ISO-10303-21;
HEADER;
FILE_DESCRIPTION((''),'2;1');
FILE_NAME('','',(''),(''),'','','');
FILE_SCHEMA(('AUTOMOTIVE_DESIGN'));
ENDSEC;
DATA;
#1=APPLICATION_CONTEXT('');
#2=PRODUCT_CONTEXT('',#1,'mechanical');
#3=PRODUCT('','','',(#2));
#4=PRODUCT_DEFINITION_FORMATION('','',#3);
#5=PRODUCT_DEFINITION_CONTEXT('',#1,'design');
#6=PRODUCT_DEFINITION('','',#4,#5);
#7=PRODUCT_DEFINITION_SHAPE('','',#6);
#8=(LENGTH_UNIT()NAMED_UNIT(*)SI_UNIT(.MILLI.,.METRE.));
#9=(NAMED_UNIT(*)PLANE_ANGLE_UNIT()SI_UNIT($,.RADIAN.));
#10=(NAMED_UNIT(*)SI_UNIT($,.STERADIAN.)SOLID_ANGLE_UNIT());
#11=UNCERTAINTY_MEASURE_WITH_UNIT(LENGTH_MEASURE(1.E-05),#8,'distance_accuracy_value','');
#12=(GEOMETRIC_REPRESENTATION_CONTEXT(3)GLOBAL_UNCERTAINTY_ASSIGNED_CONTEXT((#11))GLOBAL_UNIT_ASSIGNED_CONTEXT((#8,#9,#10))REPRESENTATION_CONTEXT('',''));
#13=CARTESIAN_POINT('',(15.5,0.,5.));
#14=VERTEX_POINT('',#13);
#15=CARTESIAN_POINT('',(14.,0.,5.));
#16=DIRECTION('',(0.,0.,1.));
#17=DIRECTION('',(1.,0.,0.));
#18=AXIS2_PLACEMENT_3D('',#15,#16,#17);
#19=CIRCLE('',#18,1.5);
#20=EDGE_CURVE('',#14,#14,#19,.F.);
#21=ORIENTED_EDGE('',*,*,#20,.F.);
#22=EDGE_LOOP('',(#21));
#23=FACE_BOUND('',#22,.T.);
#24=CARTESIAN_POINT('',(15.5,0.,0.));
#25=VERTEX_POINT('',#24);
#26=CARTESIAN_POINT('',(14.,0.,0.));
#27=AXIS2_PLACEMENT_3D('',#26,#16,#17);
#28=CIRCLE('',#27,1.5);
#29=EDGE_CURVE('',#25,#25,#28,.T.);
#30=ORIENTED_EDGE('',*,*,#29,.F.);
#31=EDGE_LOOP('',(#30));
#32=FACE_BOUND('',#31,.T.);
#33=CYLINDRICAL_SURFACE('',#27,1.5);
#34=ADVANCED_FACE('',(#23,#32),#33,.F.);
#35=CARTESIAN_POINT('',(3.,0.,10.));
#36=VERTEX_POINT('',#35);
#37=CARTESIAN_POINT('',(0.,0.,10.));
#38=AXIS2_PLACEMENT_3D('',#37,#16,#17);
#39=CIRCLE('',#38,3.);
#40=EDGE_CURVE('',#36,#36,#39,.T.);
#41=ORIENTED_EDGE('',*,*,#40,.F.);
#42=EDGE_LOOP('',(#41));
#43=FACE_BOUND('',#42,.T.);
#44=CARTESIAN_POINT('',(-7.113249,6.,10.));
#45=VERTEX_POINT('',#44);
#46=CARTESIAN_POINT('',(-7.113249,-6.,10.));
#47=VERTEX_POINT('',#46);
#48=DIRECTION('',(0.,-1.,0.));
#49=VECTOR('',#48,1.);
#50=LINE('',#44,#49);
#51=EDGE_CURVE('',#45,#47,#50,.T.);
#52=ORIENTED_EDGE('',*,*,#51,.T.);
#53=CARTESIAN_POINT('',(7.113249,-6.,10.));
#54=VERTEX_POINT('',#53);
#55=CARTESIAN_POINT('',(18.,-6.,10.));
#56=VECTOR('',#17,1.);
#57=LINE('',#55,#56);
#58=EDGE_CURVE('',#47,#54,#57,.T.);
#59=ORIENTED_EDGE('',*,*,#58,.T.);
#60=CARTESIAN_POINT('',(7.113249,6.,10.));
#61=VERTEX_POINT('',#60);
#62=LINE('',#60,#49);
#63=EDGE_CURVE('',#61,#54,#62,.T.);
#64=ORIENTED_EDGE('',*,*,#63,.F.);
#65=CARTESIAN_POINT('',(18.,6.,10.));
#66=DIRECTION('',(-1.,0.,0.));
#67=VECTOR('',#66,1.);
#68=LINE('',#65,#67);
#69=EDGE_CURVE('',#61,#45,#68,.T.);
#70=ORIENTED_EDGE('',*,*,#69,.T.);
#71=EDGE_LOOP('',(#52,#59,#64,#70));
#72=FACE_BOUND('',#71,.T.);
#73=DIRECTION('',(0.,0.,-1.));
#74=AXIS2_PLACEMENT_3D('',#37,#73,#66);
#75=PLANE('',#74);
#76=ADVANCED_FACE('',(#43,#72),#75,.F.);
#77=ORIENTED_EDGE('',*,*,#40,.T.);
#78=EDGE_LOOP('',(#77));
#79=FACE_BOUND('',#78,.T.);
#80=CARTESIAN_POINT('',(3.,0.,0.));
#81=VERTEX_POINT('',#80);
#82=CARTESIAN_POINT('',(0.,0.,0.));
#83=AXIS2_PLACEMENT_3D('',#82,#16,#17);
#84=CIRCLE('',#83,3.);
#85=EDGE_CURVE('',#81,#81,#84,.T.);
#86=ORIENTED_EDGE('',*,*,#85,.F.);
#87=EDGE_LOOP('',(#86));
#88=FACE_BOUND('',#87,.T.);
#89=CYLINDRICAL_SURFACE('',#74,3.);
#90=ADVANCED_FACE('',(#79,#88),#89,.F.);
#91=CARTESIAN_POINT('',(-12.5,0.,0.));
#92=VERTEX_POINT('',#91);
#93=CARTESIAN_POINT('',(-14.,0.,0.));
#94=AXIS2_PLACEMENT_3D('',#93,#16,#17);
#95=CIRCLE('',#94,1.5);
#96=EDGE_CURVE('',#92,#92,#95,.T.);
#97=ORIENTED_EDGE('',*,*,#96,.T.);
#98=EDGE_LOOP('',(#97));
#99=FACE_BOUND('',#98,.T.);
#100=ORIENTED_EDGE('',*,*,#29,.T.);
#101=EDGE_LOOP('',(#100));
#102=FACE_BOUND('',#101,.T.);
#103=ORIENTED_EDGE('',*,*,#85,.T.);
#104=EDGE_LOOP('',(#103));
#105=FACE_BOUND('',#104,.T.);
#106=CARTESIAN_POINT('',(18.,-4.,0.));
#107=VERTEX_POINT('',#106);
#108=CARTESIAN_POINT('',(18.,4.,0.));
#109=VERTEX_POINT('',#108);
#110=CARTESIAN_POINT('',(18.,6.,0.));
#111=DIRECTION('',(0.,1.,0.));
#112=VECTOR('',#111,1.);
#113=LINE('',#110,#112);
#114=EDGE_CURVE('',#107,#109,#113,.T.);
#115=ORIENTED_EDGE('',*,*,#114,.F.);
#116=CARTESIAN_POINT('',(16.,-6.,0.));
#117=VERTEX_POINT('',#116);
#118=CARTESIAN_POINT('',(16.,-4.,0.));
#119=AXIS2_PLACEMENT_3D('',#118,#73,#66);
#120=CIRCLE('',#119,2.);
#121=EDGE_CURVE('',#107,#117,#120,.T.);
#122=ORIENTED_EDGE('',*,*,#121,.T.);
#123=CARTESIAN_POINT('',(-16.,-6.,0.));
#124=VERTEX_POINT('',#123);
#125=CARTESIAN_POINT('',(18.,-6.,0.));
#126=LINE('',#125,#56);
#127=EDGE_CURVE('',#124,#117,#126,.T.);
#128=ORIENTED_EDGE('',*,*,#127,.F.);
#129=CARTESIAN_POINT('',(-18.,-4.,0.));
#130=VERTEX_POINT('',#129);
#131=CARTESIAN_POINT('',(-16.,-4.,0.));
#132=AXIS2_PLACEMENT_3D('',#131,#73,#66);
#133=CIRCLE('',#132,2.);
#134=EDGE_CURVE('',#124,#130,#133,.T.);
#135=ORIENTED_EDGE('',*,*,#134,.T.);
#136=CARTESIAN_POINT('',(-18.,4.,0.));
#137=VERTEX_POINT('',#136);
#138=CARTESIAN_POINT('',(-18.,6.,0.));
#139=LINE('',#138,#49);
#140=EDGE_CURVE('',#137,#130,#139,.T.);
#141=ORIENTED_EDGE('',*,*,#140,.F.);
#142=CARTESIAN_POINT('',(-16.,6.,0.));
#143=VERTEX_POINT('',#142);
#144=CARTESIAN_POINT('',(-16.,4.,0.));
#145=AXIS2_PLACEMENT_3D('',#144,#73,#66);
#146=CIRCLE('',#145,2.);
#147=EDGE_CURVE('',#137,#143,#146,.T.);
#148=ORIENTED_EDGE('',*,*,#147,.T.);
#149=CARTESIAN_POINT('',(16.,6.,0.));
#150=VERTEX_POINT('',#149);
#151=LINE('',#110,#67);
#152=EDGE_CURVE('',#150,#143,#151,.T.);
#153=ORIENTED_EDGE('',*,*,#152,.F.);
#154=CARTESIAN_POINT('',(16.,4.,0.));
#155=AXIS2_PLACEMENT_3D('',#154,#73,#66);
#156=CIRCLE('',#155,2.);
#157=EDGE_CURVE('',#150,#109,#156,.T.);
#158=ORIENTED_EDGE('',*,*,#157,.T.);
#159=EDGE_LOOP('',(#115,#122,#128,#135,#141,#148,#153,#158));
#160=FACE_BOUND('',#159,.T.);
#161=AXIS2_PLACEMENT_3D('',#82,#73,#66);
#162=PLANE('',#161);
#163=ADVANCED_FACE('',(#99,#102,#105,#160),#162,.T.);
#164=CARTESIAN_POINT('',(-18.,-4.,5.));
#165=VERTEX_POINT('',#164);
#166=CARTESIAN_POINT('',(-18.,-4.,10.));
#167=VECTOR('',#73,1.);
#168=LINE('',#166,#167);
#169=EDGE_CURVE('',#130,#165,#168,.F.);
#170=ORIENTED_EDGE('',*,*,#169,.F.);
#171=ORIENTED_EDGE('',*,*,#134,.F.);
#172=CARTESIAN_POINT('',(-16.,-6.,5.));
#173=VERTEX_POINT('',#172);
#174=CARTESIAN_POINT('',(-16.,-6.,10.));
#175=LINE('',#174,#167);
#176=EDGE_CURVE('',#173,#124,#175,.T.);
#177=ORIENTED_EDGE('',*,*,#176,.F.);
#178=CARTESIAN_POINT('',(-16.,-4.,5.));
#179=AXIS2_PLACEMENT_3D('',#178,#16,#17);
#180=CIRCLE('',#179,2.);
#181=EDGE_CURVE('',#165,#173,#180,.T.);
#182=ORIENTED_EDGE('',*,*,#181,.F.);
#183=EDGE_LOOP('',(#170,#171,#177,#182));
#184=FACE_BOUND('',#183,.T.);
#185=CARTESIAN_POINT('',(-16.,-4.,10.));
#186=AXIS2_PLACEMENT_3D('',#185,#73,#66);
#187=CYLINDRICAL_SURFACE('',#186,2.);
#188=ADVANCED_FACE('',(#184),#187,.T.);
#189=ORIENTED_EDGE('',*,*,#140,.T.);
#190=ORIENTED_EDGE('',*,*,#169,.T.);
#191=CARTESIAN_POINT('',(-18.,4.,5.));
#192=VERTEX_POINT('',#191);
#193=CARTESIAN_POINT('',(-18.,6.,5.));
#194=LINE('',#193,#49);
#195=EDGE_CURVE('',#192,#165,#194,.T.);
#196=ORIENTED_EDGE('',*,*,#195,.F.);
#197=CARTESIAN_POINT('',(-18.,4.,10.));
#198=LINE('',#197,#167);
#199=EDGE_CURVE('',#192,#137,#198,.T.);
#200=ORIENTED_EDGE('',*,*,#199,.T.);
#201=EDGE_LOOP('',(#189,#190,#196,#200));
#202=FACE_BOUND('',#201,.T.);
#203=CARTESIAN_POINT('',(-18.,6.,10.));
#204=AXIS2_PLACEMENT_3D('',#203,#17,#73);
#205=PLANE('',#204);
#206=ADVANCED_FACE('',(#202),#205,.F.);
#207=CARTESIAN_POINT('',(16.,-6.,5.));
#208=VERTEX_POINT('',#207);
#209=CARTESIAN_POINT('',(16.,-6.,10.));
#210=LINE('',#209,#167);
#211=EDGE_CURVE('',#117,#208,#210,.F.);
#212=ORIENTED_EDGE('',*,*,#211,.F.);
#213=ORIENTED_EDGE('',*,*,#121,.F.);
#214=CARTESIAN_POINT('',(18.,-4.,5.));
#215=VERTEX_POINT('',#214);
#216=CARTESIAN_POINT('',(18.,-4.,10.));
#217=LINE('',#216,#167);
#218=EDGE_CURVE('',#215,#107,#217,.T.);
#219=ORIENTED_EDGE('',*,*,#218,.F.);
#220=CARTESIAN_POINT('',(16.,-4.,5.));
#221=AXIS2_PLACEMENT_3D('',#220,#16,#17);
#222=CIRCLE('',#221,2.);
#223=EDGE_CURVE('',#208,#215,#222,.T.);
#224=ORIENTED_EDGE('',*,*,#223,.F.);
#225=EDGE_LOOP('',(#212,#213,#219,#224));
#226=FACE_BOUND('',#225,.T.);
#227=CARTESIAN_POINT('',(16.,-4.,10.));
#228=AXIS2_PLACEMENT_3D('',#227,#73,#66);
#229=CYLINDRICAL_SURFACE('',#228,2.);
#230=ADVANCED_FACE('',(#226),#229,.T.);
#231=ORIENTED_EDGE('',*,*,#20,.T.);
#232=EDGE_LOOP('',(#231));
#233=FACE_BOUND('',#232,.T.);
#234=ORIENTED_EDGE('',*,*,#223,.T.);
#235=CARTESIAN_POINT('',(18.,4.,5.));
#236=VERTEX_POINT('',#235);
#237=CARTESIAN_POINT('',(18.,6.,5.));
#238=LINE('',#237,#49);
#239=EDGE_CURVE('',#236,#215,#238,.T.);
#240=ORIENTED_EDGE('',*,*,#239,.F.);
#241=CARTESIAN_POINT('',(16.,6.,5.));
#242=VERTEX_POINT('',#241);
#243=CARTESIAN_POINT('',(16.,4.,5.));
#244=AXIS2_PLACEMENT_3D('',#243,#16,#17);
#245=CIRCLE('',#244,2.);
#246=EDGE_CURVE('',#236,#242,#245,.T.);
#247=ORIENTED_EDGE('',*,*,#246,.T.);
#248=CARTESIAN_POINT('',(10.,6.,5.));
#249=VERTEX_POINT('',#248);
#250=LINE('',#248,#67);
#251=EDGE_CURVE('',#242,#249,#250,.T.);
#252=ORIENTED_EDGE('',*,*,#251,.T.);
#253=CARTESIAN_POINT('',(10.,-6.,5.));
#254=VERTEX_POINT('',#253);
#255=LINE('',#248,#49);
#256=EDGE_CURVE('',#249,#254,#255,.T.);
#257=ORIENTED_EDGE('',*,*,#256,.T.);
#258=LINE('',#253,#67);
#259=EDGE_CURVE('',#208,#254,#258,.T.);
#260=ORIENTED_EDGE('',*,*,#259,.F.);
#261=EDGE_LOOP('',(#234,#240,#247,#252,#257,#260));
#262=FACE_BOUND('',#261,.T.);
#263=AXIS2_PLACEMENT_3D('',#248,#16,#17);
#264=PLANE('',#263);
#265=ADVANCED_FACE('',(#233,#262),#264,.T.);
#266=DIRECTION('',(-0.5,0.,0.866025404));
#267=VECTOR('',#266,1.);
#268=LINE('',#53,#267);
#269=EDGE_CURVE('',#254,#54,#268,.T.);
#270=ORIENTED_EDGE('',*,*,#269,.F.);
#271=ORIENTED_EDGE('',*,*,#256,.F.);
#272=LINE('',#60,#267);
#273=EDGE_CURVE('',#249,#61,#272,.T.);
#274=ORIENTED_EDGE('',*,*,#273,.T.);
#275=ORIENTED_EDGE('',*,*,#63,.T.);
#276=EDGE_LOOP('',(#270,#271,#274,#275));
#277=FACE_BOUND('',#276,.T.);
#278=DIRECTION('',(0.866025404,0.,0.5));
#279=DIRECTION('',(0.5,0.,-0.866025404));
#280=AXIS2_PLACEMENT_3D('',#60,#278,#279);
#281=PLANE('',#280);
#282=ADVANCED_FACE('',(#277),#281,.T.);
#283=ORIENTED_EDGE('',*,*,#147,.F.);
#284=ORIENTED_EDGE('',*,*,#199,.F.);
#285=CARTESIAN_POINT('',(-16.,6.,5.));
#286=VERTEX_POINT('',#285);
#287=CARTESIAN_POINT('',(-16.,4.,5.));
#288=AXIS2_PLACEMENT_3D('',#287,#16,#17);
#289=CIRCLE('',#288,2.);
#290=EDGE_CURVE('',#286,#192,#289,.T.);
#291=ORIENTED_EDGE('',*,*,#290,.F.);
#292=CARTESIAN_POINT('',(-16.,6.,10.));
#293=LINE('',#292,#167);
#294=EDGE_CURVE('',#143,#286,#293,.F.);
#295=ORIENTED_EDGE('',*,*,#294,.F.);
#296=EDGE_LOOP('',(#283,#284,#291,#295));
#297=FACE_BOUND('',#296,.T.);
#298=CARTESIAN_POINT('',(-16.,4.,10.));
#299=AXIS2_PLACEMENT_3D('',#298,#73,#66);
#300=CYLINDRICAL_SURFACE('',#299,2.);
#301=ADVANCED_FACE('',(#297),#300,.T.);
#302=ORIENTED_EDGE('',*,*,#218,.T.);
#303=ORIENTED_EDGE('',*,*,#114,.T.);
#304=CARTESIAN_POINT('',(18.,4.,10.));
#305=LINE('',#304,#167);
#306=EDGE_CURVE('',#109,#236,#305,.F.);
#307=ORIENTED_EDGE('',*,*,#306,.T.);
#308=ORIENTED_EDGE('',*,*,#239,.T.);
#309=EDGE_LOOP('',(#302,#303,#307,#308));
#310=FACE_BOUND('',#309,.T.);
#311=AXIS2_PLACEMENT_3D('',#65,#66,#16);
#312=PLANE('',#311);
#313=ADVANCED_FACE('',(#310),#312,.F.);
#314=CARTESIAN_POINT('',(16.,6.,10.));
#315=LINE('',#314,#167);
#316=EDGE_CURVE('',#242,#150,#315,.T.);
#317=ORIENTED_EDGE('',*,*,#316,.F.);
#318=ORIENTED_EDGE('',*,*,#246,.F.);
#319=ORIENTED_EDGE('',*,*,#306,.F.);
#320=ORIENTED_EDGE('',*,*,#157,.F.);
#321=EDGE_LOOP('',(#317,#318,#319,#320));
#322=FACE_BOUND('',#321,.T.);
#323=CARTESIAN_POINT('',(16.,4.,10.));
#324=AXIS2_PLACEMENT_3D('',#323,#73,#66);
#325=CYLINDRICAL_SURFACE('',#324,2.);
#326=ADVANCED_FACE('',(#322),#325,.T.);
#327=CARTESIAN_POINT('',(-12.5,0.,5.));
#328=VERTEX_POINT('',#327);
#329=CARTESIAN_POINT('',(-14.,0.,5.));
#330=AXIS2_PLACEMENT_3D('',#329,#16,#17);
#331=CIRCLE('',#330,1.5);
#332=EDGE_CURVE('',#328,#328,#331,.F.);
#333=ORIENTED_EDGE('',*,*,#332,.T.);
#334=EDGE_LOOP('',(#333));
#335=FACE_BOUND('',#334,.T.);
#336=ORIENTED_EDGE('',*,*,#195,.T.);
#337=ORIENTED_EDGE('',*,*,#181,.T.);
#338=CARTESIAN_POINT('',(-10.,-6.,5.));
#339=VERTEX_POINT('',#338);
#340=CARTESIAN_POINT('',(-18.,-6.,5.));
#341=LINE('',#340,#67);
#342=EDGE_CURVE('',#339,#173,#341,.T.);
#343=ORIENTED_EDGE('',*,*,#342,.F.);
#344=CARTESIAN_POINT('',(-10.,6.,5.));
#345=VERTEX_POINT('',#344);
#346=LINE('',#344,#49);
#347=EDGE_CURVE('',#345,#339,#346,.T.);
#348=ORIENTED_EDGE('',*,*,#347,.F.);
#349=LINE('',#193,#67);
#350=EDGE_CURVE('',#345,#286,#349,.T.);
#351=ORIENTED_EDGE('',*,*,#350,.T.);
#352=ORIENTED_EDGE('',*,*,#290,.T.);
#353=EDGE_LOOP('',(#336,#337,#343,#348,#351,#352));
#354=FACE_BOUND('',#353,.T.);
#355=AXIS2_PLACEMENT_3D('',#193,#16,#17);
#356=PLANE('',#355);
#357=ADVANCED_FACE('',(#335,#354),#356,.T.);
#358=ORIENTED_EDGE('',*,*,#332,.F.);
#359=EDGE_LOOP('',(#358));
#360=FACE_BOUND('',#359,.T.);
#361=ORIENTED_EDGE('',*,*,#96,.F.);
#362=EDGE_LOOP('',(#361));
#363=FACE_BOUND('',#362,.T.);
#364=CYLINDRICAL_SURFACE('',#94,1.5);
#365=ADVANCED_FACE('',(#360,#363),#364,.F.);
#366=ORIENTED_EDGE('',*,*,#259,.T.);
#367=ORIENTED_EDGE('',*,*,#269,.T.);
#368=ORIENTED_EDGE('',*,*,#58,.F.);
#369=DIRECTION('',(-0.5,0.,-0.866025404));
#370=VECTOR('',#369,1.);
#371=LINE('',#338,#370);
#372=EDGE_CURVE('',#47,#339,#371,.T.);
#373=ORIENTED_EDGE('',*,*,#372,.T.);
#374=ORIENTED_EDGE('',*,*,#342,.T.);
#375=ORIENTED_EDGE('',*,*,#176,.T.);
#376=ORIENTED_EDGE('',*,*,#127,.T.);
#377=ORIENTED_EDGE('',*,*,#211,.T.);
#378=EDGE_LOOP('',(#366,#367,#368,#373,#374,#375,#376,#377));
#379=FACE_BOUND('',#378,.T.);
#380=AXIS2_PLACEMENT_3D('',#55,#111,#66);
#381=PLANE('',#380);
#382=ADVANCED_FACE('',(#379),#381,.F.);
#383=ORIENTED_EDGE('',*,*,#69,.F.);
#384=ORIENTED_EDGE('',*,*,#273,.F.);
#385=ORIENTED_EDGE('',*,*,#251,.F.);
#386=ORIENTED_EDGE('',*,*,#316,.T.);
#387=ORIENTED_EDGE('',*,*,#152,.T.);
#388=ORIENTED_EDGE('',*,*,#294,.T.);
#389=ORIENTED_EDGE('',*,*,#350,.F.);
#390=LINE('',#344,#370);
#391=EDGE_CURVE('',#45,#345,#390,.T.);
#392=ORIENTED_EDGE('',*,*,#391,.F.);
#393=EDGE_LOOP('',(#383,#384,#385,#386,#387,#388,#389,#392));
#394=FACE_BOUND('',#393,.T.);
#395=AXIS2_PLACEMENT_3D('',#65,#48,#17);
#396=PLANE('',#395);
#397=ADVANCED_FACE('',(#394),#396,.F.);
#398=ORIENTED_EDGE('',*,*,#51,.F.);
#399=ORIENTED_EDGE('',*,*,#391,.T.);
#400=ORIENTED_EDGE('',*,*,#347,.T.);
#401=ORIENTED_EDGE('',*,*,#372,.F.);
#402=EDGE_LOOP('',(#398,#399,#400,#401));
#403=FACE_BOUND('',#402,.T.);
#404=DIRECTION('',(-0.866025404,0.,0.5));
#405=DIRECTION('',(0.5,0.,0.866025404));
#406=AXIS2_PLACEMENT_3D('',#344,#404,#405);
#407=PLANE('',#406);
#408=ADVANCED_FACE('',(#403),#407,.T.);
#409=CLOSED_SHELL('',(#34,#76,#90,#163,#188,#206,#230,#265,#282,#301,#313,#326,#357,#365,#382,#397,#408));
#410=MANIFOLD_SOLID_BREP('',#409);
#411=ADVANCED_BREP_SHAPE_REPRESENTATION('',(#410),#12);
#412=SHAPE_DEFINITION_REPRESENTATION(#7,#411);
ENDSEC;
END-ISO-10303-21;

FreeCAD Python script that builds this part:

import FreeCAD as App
import Part
import Sketcher
from FreeCAD import Vector
Q = App.Units.Quantity


def edges_at(feature, points):
    """Names of the edges that pass closest to the given points."""
    edges = feature.Shape.Edges
    near = lambda p: min(range(len(edges)), key=lambda i: edges[i].distToShape(Part.Vertex(*p))[0])
    return sorted({f"Edge{near(p) + 1}" for p in points})

doc = App.newDocument("Part")
body = doc.addObject("PartDesign::Body", "Body")

sketch1 = body.newObject("Sketcher::SketchObject", "Sketch")
sketch1.AttachmentSupport = (doc.getObject("XY_Plane"), [""])
sketch1.MapMode = "FlatFace"
sketch1.addGeometry([
    Part.LineSegment(Vector(-18, 6, 0), Vector(-18, -6, 0)),
    Part.LineSegment(Vector(-18, -6, 0), Vector(18, -6, 0)),
    Part.LineSegment(Vector(18, -6, 0), Vector(18, 6, 0)),
    Part.LineSegment(Vector(18, 6, 0), Vector(-18, 6, 0)),
    Part.Circle(Vector(0, 0, 0), Vector(0, 0, 1), 3),
], False)
sketch1.addConstraint([
    Sketcher.Constraint("Coincident", 0, 2, 1, 1),
    Sketcher.Constraint("Coincident", 1, 2, 2, 1),
    Sketcher.Constraint("Coincident", 2, 2, 3, 1),
    Sketcher.Constraint("Coincident", 3, 2, 0, 1),
    Sketcher.Constraint("Vertical", 0),
    Sketcher.Constraint("Horizontal", 1),
    Sketcher.Constraint("Vertical", 2),
    Sketcher.Constraint("Horizontal", 3),
    Sketcher.Constraint("Coincident", 4, 3, -1, 1),
    Sketcher.Constraint("Symmetric", 0, 2, 2, 2, -1, 1),
    Sketcher.Constraint("Diameter", 4, Q("6 mm")),
    Sketcher.Constraint("DistanceX", 1, 1, 1, 2, Q("36 mm")),
    Sketcher.Constraint("DistanceY", 0, 2, 0, 1, Q("12 mm")),
])
pad1 = body.newObject("PartDesign::Pad", "Pad")
pad1.Profile = sketch1
pad1.Length = 10

sketch2 = body.newObject("Sketcher::SketchObject", "Sketch001")
sketch2.AttachmentSupport = (doc.getObject("XY_Plane"), [""])
sketch2.MapMode = "FlatFace"
sketch2.AttachmentOffset = App.Placement(Vector(0, 0, 10), App.Rotation())
sketch2.addGeometry([
    Part.Circle(Vector(-14, 0, 0), Vector(0, 0, 1), 1.5),
    Part.Circle(Vector(14, 0, 0), Vector(0, 0, 1), 1.5),
], False)
sketch2.addConstraint([
    Sketcher.Constraint("Equal", 0, 1),
    Sketcher.Constraint("Symmetric", 0, 3, 1, 3, -1, 1),
    Sketcher.Constraint("PointOnObject", 0, 3, -1),
    Sketcher.Constraint("Diameter", 0, Q("3 mm")),
    Sketcher.Constraint("DistanceX", 0, 3, -1, 1, Q("14 mm")),
])
pocket1 = body.newObject("PartDesign::Pocket", "Pocket")
pocket1.Profile = sketch2
pocket1.Type = "ThroughAll"

sketch3 = body.newObject("Sketcher::SketchObject", "Sketch002")
sketch3.AttachmentSupport = (doc.getObject("XZ_Plane"), [""])
sketch3.MapMode = "FlatFace"
sketch3.AttachmentOffset = App.Placement(Vector(0, 0, 6), App.Rotation())
sketch3.addGeometry([
    Part.LineSegment(Vector(-23, 15, 0), Vector(-23, -5, 0)),
    Part.LineSegment(Vector(-23, -5, 0), Vector(23, -5, 0)),
    Part.LineSegment(Vector(23, -5, 0), Vector(23, 15, 0)),
    Part.LineSegment(Vector(23, 15, 0), Vector(-23, 15, 0)),
    Part.LineSegment(Vector(18, 0, 0), Vector(-18, 0, 0)),
    Part.LineSegment(Vector(-18, 0, 0), Vector(-18, 5, 0)),
    Part.LineSegment(Vector(-18, 5, 0), Vector(-10, 5, 0)),
    Part.LineSegment(Vector(-10, 5, 0), Vector(-7, 10, 0)),
    Part.LineSegment(Vector(-7, 10, 0), Vector(7, 10, 0)),
    Part.LineSegment(Vector(7, 10, 0), Vector(10, 5, 0)),
    Part.LineSegment(Vector(10, 5, 0), Vector(18, 5, 0)),
    Part.LineSegment(Vector(18, 5, 0), Vector(18, 0, 0)),
], False)
sketch3.addConstraint([
    Sketcher.Constraint("Coincident", 0, 2, 1, 1),
    Sketcher.Constraint("Coincident", 1, 2, 2, 1),
    Sketcher.Constraint("Coincident", 2, 2, 3, 1),
    Sketcher.Constraint("Coincident", 3, 2, 0, 1),
    Sketcher.Constraint("Coincident", 4, 2, 5, 1),
    Sketcher.Constraint("Coincident", 5, 2, 6, 1),
    Sketcher.Constraint("Coincident", 6, 2, 7, 1),
    Sketcher.Constraint("Coincident", 7, 2, 8, 1),
    Sketcher.Constraint("Coincident", 8, 2, 9, 1),
    Sketcher.Constraint("Coincident", 9, 2, 10, 1),
    Sketcher.Constraint("Coincident", 10, 2, 11, 1),
    Sketcher.Constraint("Coincident", 11, 2, 4, 1),
    Sketcher.Constraint("Vertical", 0),
    Sketcher.Constraint("Horizontal", 1),
    Sketcher.Constraint("Vertical", 2),
    Sketcher.Constraint("Horizontal", 3),
    Sketcher.Constraint("Horizontal", 4),
    Sketcher.Constraint("Vertical", 5),
    Sketcher.Constraint("Horizontal", 6),
    Sketcher.Constraint("Horizontal", 8),
    Sketcher.Constraint("Horizontal", 10),
    Sketcher.Constraint("Vertical", 11),
    Sketcher.Constraint("Symmetric", 4, 2, 11, 2, -1, 1),
    Sketcher.Constraint("Symmetric", 6, 2, 9, 2, -2),
    Sketcher.Constraint("Equal", 7, 9),
    Sketcher.Constraint("DistanceX", 4, 2, 4, 1, Q("36 mm")),
    Sketcher.Constraint("DistanceX", 6, 1, 6, 2, Q("8 mm")),
    Sketcher.Constraint("DistanceY", 5, 1, 5, 2, Q("5 mm")),
    Sketcher.Constraint("Angle", 7, Q("60 deg")),
    Sketcher.Constraint("DistanceY", -1, 1, 7, 2, Q("10 mm")),
    Sketcher.Constraint("DistanceX", 1, 1, 1, 2, Q("45.848 mm")),
    Sketcher.Constraint("DistanceY", 0, 2, 0, 1, Q("19.848 mm")),
    Sketcher.Constraint("DistanceX", 0, 2, -1, 1, Q("22.924 mm")),
    Sketcher.Constraint("DistanceY", 0, 2, -1, 1, Q("4.924 mm")),
])
pocket2 = body.newObject("PartDesign::Pocket", "Pocket001")
pocket2.Profile = sketch3
pocket2.Type = "ThroughAll"
doc.recompute()

fillet = body.newObject("PartDesign::Fillet", "Fillet")
fillet.Base = (pocket2, edges_at(pocket2, [
    (-18, 6, 2.5),
    (18, 6, 2.5),
    (18, -6, 2.5),
    (-18, -6, 2.5),
]))
fillet.Radius = 2

doc.recompute()
